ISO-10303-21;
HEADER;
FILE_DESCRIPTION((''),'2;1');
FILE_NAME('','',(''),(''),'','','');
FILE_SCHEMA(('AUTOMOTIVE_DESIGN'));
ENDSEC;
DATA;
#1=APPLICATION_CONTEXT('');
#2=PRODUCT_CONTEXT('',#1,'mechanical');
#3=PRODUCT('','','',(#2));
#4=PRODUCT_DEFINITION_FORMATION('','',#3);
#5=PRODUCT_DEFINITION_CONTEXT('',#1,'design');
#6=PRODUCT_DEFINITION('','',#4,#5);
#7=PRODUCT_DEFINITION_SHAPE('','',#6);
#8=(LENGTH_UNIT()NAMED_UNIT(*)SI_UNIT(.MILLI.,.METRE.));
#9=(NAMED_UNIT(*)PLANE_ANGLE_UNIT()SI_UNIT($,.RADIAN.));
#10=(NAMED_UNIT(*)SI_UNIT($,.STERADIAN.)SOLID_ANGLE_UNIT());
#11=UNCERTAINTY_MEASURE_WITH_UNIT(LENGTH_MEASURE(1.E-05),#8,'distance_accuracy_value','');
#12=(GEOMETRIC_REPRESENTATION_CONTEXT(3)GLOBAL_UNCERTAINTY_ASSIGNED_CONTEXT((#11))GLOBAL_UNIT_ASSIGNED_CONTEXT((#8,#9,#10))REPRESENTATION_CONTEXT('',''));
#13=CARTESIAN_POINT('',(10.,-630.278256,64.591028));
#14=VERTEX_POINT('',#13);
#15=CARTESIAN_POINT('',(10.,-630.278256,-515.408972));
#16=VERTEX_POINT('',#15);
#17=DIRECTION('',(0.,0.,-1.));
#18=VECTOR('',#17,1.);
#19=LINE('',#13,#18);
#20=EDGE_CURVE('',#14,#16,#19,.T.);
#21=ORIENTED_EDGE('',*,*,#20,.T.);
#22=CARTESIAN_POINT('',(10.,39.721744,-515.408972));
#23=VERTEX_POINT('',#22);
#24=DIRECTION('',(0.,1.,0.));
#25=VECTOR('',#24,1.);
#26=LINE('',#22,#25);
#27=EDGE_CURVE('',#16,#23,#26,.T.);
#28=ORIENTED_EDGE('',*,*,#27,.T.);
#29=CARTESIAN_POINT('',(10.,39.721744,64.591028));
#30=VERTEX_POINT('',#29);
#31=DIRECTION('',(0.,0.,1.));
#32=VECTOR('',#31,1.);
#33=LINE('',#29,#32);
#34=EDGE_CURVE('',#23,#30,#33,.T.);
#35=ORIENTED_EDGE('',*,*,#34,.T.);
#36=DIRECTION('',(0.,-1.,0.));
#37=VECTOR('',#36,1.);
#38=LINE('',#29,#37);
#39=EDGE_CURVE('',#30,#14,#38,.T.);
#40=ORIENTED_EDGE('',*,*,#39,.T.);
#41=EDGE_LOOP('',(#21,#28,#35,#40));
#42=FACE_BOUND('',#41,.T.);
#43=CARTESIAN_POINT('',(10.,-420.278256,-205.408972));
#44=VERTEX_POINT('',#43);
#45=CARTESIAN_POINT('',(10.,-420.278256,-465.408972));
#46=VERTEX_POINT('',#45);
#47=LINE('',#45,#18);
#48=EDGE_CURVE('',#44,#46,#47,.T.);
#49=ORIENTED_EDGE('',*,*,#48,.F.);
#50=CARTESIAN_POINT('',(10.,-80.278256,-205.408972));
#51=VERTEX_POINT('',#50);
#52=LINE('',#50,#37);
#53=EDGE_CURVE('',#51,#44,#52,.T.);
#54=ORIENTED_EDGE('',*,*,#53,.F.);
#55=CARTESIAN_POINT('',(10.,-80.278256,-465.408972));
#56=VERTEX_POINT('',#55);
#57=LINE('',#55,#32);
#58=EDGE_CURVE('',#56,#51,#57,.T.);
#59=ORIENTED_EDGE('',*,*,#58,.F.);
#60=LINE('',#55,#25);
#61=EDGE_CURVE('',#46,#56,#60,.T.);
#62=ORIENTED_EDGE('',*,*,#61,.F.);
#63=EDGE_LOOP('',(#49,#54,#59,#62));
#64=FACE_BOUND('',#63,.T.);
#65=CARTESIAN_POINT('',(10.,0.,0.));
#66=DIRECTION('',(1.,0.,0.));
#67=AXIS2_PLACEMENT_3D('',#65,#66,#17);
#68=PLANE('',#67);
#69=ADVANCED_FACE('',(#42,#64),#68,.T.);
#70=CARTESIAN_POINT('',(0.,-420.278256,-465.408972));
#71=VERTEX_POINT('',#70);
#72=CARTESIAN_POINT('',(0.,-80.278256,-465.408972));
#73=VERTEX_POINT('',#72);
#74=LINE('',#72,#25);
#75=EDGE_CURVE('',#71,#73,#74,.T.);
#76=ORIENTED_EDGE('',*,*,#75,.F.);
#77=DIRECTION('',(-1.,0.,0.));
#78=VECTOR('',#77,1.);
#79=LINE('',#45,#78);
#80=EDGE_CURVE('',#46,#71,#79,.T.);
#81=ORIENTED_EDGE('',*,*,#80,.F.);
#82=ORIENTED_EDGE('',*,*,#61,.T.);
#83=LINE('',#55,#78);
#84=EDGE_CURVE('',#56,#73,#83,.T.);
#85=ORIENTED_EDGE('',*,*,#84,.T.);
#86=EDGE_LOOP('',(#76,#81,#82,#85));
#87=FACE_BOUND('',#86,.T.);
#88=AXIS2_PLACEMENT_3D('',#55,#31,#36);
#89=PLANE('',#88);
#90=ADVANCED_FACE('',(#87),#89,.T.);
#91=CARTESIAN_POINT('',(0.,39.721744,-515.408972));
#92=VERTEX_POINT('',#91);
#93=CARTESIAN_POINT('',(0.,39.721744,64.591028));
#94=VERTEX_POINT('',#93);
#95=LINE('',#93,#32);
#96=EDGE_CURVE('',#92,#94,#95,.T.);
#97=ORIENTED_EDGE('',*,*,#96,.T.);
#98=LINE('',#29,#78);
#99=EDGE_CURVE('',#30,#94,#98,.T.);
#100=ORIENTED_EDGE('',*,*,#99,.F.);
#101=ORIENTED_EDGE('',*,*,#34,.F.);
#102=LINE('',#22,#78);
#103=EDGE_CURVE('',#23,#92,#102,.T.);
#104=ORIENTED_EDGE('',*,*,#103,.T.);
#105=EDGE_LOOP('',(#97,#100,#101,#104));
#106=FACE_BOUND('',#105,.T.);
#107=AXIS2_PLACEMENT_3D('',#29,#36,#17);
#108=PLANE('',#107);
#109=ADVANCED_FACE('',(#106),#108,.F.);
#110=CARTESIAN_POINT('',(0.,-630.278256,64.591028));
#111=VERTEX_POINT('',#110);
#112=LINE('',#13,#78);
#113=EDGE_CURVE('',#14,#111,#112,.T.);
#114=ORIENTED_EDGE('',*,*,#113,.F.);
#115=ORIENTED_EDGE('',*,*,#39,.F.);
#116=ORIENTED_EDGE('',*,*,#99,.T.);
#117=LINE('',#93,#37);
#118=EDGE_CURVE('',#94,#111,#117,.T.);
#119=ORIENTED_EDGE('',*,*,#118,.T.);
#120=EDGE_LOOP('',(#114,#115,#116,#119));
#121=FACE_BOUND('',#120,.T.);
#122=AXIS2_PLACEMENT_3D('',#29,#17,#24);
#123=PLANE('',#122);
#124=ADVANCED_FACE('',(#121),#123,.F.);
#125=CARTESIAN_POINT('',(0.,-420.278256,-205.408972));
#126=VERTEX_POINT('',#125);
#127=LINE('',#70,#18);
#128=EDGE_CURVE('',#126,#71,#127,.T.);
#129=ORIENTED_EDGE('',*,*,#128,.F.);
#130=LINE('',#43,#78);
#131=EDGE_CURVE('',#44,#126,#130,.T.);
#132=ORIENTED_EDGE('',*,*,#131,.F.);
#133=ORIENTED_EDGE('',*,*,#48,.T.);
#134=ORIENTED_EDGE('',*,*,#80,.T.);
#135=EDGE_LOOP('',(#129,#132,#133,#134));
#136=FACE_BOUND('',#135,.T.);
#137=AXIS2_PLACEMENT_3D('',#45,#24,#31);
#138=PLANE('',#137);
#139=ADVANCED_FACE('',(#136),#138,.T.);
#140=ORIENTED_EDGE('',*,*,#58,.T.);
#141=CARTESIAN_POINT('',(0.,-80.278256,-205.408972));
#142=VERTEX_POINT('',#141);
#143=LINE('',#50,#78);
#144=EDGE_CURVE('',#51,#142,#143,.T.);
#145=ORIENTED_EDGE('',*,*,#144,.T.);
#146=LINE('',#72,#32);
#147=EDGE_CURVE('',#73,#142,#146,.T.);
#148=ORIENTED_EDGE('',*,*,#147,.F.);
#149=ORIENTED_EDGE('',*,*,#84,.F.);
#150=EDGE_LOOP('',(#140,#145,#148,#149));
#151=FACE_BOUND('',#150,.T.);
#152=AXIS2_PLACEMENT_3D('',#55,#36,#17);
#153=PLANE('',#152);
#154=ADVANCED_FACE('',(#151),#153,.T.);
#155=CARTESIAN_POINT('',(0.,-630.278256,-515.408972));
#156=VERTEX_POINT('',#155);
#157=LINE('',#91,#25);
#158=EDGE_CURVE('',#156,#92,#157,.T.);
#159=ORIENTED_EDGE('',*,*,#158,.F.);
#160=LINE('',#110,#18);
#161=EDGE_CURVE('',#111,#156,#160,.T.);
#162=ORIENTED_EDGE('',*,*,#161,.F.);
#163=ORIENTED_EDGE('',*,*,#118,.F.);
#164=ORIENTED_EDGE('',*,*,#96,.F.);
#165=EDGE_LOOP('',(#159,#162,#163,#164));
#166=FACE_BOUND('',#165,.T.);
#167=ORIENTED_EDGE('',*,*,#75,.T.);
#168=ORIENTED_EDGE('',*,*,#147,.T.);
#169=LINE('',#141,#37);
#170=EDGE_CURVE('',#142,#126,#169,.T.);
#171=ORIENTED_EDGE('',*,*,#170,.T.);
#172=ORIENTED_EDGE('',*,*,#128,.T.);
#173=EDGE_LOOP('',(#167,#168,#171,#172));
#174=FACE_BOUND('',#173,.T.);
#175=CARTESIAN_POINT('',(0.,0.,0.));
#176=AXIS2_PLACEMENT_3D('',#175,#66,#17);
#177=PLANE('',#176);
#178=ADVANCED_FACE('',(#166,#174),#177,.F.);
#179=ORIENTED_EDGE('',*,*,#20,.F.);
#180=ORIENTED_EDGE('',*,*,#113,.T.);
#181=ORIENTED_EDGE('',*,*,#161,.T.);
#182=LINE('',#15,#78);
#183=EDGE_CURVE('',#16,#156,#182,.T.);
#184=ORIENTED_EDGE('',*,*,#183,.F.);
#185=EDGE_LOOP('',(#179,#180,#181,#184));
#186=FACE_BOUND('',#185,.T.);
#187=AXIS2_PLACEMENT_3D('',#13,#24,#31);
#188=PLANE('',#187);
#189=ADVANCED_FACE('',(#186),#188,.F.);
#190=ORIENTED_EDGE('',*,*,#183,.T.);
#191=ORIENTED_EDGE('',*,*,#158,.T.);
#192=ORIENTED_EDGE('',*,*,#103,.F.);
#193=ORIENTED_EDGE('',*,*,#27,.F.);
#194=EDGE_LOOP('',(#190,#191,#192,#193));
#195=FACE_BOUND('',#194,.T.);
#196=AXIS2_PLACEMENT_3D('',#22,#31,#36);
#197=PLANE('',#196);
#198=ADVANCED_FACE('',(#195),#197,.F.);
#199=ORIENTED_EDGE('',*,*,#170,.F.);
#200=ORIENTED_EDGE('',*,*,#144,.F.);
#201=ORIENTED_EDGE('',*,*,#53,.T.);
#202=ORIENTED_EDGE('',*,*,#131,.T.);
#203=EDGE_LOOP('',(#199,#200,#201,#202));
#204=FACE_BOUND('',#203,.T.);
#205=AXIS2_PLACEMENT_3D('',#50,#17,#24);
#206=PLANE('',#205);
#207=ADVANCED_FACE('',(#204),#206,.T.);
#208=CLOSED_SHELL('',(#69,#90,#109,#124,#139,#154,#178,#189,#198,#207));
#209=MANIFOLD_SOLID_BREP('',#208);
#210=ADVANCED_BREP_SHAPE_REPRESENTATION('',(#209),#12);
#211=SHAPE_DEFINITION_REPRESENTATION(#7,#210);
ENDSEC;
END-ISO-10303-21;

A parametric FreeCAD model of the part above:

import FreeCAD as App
import Part
import Sketcher
from FreeCAD import Vector
Q = App.Units.Quantity


def add_polygon(sketch, points):
    """Adds a closed chain of lines whose ends are joined by coincident constraints."""
    first, n = sketch.GeometryCount, len(points)
    for a, b in zip(points, points[1:] + points[:1]):
        sketch.addGeometry(Part.LineSegment(App.Vector(*a, 0), App.Vector(*b, 0)), False)
    for i in range(n):
        sketch.addConstraint(Sketcher.Constraint("Coincident", first + i, 2, first + (i + 1) % n, 1))

doc = App.newDocument("Part")
body = doc.addObject("PartDesign::Body", "Body")

# Sketch on YZ plane
sketch1 = doc.addObject("Sketcher::SketchObject", "Sketch")
body.addObject(sketch1)
sketch1.AttachmentSupport = (doc.YZ_Plane, [""])
sketch1.MapMode = "FlatFace"
add_polygon(sketch1, [(40, 65), (-630, 65), (-630, -515), (40, -515)])  # lines 0-3
add_polygon(sketch1, [(-420, -465), (-420, -205), (-80, -205), (-80, -465)])  # lines 4-7
sketch1.addConstraint(Sketcher.Constraint("Horizontal", 0))
sketch1.addConstraint(Sketcher.Constraint("Vertical", 1))
sketch1.addConstraint(Sketcher.Constraint("Horizontal", 2))
sketch1.addConstraint(Sketcher.Constraint("Vertical", 3))
sketch1.addConstraint(Sketcher.Constraint("Vertical", 4))
sketch1.addConstraint(Sketcher.Constraint("Horizontal", 5))
sketch1.addConstraint(Sketcher.Constraint("Vertical", 6))
sketch1.addConstraint(Sketcher.Constraint("Horizontal", 7))
sketch1.addConstraint(Sketcher.Constraint("DistanceX", 0, 2, 0, 1, Q("670 mm")))
sketch1.addConstraint(Sketcher.Constraint("DistanceX", 5, 1, 5, 2, Q("340 mm")))
sketch1.addConstraint(Sketcher.Constraint("DistanceY", 1, 2, 1, 1, Q("580 mm")))
sketch1.addConstraint(Sketcher.Constraint("DistanceY", 4, 1, 4, 2, Q("260 mm")))
sketch1.addConstraint(Sketcher.Constraint("DistanceX", 0, 2, 4, 2, Q("210 mm")))
sketch1.addConstraint(Sketcher.Constraint("DistanceY", 4, 2, 0, 2, Q("270 mm")))
sketch1.addConstraint(Sketcher.Constraint("DistanceY", -1, 1, 0, 2, Q("64.591028 mm")))
sketch1.addConstraint(Sketcher.Constraint("DistanceX", 0, 2, -1, 1, Q("630.278256 mm")))
pad1 = doc.addObject("PartDesign::Pad", "Pad")
body.addObject(pad1)
pad1.Profile = sketch1
pad1.Length = 10

doc.recompute()
